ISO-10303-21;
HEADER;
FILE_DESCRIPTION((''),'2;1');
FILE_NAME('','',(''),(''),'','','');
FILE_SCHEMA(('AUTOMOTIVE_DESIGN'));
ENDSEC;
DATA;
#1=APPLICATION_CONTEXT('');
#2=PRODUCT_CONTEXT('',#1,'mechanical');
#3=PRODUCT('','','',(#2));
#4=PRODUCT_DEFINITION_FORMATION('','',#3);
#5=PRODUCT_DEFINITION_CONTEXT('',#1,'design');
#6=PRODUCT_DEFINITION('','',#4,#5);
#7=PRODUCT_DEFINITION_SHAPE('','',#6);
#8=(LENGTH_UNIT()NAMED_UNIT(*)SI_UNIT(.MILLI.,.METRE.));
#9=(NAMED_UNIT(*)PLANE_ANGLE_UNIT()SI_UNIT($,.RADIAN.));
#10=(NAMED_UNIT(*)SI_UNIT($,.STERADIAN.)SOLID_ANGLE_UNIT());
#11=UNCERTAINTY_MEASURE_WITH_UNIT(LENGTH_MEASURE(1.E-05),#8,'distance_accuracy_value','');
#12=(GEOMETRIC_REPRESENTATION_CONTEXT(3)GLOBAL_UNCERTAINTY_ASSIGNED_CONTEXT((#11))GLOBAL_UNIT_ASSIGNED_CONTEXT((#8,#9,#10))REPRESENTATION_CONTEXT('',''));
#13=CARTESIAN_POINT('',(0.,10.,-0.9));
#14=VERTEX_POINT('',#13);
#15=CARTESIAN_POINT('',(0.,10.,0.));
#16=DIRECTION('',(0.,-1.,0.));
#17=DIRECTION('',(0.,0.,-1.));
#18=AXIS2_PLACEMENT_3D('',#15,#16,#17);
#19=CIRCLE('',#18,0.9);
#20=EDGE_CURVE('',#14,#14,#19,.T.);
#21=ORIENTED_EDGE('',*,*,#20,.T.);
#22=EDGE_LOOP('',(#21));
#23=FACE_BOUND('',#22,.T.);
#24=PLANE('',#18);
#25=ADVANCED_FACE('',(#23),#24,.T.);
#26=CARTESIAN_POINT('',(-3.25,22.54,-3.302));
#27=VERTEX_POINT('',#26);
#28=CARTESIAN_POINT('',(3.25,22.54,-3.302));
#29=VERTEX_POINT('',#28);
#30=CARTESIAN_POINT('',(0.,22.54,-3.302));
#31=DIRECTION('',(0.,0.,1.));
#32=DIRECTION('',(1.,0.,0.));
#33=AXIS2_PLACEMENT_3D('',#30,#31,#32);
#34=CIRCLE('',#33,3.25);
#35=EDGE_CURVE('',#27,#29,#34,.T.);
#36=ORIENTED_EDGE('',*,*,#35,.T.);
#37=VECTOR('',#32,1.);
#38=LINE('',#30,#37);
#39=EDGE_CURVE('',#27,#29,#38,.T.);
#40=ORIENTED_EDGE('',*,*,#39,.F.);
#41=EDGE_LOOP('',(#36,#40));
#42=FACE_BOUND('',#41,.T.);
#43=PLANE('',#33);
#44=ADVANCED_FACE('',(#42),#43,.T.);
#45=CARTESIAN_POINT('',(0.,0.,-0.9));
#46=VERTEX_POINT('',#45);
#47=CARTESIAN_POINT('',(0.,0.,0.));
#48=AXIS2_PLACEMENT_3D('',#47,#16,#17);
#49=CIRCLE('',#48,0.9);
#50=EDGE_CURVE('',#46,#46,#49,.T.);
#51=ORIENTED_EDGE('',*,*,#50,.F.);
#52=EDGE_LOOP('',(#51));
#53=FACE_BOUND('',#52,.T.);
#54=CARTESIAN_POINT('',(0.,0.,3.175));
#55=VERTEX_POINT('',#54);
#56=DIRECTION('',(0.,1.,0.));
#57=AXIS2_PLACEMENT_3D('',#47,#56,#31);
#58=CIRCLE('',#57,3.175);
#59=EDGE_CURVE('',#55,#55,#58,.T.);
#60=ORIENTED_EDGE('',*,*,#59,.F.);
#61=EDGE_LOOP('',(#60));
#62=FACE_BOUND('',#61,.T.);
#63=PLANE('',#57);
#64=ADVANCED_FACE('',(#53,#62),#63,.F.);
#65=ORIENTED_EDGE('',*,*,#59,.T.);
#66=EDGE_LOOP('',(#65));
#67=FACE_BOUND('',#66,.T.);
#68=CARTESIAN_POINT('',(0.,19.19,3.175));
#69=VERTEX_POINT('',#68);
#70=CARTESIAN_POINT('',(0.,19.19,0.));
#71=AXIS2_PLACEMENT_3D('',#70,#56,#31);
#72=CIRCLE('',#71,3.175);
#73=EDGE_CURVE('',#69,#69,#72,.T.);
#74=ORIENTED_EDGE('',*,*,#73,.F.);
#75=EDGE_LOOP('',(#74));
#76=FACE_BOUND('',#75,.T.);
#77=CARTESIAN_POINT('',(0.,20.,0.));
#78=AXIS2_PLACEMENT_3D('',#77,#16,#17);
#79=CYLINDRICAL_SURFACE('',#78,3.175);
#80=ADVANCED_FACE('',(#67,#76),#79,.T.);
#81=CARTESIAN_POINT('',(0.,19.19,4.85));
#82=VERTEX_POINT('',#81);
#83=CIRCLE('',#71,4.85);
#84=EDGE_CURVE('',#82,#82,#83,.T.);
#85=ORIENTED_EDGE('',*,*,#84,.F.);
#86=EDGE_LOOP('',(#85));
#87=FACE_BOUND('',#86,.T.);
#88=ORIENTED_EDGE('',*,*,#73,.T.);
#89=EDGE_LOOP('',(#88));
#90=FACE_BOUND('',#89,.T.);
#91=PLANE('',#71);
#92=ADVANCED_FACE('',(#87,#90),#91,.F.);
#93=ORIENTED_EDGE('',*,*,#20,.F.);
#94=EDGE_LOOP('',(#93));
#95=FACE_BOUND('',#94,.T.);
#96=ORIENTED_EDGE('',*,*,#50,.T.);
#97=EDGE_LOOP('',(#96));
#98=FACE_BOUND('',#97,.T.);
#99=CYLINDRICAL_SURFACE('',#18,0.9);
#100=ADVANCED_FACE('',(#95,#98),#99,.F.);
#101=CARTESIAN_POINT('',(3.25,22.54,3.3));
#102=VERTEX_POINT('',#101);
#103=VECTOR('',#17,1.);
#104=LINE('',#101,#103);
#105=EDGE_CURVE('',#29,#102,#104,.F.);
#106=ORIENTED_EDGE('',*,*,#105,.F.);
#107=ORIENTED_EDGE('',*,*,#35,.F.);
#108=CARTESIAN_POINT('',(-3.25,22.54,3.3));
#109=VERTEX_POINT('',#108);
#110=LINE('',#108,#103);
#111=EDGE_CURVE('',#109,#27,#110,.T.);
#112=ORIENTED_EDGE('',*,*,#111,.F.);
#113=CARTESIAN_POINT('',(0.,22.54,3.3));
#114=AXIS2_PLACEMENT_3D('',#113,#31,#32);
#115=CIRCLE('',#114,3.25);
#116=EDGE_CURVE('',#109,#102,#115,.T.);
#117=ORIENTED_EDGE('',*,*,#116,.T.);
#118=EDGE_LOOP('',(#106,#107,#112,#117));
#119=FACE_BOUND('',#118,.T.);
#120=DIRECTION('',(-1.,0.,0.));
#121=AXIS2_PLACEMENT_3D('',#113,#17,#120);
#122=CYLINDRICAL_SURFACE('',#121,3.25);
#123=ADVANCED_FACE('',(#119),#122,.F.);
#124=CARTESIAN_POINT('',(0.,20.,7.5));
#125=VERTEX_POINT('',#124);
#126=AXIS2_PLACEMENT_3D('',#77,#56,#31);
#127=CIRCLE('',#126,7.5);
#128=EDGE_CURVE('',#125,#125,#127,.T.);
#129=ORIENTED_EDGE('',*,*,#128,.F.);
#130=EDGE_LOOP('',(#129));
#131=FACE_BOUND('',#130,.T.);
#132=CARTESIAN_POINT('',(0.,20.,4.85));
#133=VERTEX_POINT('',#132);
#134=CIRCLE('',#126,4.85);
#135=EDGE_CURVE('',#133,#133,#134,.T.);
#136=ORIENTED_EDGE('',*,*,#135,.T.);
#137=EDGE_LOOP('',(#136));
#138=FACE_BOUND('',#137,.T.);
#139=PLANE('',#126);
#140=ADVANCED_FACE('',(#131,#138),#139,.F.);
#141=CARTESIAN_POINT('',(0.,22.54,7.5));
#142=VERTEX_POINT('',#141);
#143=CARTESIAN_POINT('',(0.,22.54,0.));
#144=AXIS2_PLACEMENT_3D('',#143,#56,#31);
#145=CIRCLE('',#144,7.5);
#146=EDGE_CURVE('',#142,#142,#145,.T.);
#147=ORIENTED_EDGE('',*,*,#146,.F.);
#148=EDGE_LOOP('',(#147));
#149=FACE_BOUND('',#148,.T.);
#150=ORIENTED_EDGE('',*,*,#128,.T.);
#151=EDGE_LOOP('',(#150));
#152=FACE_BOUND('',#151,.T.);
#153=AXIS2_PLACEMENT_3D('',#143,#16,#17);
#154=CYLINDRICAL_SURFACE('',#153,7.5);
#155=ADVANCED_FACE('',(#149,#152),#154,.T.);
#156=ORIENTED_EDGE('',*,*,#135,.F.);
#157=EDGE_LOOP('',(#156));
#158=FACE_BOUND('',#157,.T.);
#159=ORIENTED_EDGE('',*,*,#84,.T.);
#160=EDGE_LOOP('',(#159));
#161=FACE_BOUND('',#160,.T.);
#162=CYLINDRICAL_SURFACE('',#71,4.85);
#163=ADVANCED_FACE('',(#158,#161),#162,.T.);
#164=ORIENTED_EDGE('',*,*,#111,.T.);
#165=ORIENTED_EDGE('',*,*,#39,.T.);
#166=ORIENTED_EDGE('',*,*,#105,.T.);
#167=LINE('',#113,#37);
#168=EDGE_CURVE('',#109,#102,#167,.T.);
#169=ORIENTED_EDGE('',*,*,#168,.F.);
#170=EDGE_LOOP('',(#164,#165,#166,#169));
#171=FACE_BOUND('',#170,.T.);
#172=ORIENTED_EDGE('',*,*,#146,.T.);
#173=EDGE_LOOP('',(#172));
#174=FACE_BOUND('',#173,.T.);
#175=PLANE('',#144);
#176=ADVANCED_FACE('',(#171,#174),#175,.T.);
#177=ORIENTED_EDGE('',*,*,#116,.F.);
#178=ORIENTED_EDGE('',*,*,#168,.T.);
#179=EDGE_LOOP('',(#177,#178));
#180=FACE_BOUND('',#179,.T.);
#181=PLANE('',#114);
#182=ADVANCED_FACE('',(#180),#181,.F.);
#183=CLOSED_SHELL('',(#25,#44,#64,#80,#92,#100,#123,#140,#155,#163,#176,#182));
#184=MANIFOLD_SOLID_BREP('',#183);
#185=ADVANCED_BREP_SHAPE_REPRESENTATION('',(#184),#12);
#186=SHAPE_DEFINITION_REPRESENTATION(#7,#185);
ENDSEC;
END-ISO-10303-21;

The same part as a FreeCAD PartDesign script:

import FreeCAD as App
import Part
import Sketcher

V = App.Vector
Q = App.Units.Quantity

doc = App.newDocument("Part")
body = doc.addObject("PartDesign::Body", "Body")

sketch1 = doc.addObject("Sketcher::SketchObject", "Sketch")
body.addObject(sketch1)
sketch1.AttachmentSupport = (doc.XZ_Plane, [""])
sketch1.MapMode = "FlatFace"
sketch1.addGeometry(Part.Circle(V(0, 0, 0), V(0, 0, 1), 3.2), False)
sketch1.addConstraint([
    Sketcher.Constraint("Coincident", 0, 3, -1, 1),
    Sketcher.Constraint("Diameter", 0, Q("6.35 mm")),
])
pad1 = doc.addObject("PartDesign::Pad", "Pad")
body.addObject(pad1)
pad1.Profile = sketch1
pad1.Length = 20
pad1.Reversed = True

sketch2 = doc.addObject("Sketcher::SketchObject", "Sketch001")
body.addObject(sketch2)
sketch2.AttachmentSupport = (doc.XZ_Plane, [""])
sketch2.MapMode = "FlatFace"
sketch2.addGeometry(Part.Circle(V(0, 0, 0), V(0, 0, 1), 0.9), False)
sketch2.addConstraint([
    Sketcher.Constraint("Coincident", 0, 3, -1, 1),
    Sketcher.Constraint("Diameter", 0, Q("1.8 mm")),
])
pocket1 = doc.addObject("PartDesign::Pocket", "Pocket")
body.addObject(pocket1)
pocket1.Profile = sketch2
pocket1.Length = 10

sketch3 = doc.addObject("Sketcher::SketchObject", "Sketch002")
body.addObject(sketch3)
sketch3.AttachmentSupport = (doc.XZ_Plane, [""])
sketch3.MapMode = "FlatFace"
sketch3.AttachmentOffset = App.Placement(V(0, 0, -20), App.Rotation())
sketch3.addGeometry(Part.Circle(V(0, 0, 0), V(0, 0, 1), 8), False)
sketch3.addConstraint([
    Sketcher.Constraint("Coincident", 0, 3, -1, 1),
    Sketcher.Constraint("Diameter", 0, Q("15 mm")),
])
pad2 = doc.addObject("PartDesign::Pad", "Pad001")
body.addObject(pad2)
pad2.Profile = sketch3
pad2.Length = 2.54
pad2.Reversed = True

sketch4 = doc.addObject("Sketcher::SketchObject", "Sketch003")
body.addObject(sketch4)
sketch4.AttachmentSupport = (doc.XZ_Plane, [""])
sketch4.MapMode = "FlatFace"
sketch4.AttachmentOffset = App.Placement(V(0, 0, -22.54), App.Rotation())
sketch4.addGeometry(Part.Circle(V(0, 0, 0), V(0, 0, 1), 4.8), False)
sketch4.addConstraint([
    Sketcher.Constraint("Coincident", 0, 3, -1, 1),
    Sketcher.Constraint("Diameter", 0, Q("9.7 mm")),
])
pad3 = doc.addObject("PartDesign::Pad", "Pad002")
body.addObject(pad3)
pad3.Profile = sketch4
pad3.Length = 3.35

sketch5 = doc.addObject("Sketcher::SketchObject", "Sketch004")
body.addObject(sketch5)
sketch5.AttachmentSupport = (doc.XY_Plane, [""])
sketch5.MapMode = "FlatFace"
sketch5.addGeometry(Part.Circle(V(0, 22.5, 0), V(0, 0, 1), 3.2), False)
sketch5.addConstraint([
    Sketcher.Constraint("PointOnObject", 0, 3, -2),
    Sketcher.Constraint("Diameter", 0, Q("6.5 mm")),
    Sketcher.Constraint("DistanceY", -1, 1, 0, 3, Q("22.54 mm")),
])
pocket2 = doc.addObject("PartDesign::Pocket", "Pocket001")
body.addObject(pocket2)
pocket2.Profile = sketch5
pocket2.Type = "TwoLengths"
pocket2.Length = 3.3
pocket2.Length2 = 3.302
pocket2.Reversed = True

doc.recompute()
